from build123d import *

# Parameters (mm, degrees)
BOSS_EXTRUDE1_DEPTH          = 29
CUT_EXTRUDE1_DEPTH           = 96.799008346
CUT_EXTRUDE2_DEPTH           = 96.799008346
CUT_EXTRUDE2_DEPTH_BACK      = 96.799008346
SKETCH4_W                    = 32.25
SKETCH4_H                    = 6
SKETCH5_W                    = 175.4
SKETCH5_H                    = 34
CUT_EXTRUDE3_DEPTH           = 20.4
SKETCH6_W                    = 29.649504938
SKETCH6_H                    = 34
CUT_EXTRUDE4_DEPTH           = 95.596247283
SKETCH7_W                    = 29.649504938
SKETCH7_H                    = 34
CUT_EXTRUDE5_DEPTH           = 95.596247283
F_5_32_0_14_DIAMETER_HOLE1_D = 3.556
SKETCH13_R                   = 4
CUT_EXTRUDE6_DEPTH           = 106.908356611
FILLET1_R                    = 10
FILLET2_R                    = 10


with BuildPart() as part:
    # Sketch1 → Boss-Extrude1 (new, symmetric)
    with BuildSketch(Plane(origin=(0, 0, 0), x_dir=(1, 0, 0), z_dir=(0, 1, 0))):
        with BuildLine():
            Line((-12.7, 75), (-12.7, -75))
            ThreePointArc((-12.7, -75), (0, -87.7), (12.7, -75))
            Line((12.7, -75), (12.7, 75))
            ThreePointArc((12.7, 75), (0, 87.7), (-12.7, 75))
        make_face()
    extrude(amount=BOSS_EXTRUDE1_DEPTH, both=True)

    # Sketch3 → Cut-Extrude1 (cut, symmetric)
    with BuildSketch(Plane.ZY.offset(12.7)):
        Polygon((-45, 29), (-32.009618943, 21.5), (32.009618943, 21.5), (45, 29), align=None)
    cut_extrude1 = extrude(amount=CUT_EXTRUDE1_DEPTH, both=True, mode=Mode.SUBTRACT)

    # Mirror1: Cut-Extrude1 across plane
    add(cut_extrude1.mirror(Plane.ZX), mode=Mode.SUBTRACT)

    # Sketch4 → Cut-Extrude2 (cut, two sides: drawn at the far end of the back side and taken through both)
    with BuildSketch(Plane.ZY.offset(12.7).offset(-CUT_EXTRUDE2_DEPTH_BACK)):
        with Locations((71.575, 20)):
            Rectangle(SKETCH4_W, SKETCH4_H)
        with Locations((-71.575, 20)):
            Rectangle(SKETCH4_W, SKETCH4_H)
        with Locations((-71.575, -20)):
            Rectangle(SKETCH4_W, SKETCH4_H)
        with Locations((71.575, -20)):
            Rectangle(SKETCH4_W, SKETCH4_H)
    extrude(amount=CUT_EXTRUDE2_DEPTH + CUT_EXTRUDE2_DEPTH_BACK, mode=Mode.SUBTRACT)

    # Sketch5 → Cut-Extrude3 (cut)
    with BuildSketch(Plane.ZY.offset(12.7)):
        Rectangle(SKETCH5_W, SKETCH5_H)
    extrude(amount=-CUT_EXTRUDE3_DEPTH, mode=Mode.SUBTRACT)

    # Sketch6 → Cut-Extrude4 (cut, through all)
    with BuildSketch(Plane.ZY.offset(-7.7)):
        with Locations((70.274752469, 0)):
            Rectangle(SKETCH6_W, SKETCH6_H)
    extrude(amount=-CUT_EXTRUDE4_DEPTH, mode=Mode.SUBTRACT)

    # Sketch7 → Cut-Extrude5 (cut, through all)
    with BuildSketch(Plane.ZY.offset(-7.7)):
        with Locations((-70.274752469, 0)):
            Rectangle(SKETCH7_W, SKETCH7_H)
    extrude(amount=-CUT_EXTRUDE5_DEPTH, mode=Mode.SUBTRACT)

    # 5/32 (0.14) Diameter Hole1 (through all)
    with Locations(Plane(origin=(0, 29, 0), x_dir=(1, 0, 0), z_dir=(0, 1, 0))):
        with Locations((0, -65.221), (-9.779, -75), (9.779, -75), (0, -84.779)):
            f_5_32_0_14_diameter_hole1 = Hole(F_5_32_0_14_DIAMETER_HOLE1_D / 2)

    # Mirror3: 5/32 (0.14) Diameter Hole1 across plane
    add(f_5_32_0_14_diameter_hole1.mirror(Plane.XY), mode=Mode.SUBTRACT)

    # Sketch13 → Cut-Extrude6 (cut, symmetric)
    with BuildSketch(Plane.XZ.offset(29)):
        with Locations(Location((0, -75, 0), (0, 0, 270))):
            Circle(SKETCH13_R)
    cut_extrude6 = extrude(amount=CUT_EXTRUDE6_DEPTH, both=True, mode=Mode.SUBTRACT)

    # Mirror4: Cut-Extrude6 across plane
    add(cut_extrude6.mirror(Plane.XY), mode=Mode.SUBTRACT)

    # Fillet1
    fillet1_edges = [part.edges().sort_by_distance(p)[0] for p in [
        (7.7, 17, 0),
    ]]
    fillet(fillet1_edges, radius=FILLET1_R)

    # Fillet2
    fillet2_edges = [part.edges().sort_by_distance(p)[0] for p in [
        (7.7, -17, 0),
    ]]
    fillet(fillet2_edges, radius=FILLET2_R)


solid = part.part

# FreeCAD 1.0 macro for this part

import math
import FreeCAD as App
import Part
import Sketcher
Q = App.Units.Quantity


def edges_at(feature, points):
    """Names of the edges that pass closest to the given points."""
    edges = feature.Shape.Edges
    near = lambda p: min(range(len(edges)), key=lambda i: edges[i].distToShape(Part.Vertex(*p))[0])
    return sorted({f"Edge{near(p) + 1}" for p in points})

doc = App.newDocument("Part")
params = doc.addObject("Spreadsheet::Sheet", "Params")
for row, (alias, value) in enumerate([
    ("sketch1_radius", "12.7 mm"),
    ("sketch1_height", "150 mm"),
    ("pad1_length", "58 mm"),
    ("sketch2_height", "90 mm"),
    ("sketch2_length", "15 mm"),
    ("pocket1_length", "193.598017 mm"),
    ("sketch3_width", "6 mm"),
    ("sketch3_height", "32.25 mm"),
    ("sketch4_width", "34 mm"),
    ("sketch4_height", "175.4 mm"),
    ("pocket3_length", "20.4 mm"),
    ("sketch5_width", "34 mm"),
    ("sketch6_width", "34 mm"),
    ("hole_diameter", "3.556 mm"),
    ("sketch8_diameter", "8 mm"),
    ("pocket6_length", "213.816713 mm"),
    ("fillet_radius", "10 mm"),
    ("fillet2_radius", "10 mm"),
], start=1):
    params.set(f"A{row}", alias)
    params.set(f"B{row}", "=" + value)
    params.setAlias(f"B{row}", alias)

body = doc.addObject("PartDesign::Body", "Body")

sketch1 = body.newObject("Sketcher::SketchObject", "Sketch")
sketch1.AttachmentSupport = (doc.getObject("XZ_Plane"), [""])
sketch1.MapMode = "FlatFace"
sketch1.addGeometry([
    Part.LineSegment(App.Vector(-12.7, -75, 0), App.Vector(-12.7, 75, 0)),
    Part.ArcOfCircle(Part.Circle(App.Vector(0, 75, 0), App.Vector(0, 0, 1), 12.7), math.radians(0), math.radians(180)),
    Part.LineSegment(App.Vector(12.7, 75, 0), App.Vector(12.7, -75, 0)),
    Part.ArcOfCircle(Part.Circle(App.Vector(0, -75, 0), App.Vector(0, 0, 1), 12.7), math.radians(180), math.radians(360)),
], False)
sketch1.addConstraint([
    Sketcher.Constraint("Tangent", 0, 2, 1, 2),
    Sketcher.Constraint("Tangent", 1, 1, 2, 1),
    Sketcher.Constraint("Tangent", 2, 2, 3, 2),
    Sketcher.Constraint("Tangent", 3, 1, 0, 1),
    Sketcher.Constraint("Vertical", 0),
    Sketcher.Constraint("Vertical", 2),
    Sketcher.Constraint("Symmetric", 1, 3, 3, 3, -1, 1),
    Sketcher.Constraint("Radius", 1, Q("12.7 mm")),
    Sketcher.Constraint("DistanceY", 0, 1, 0, 2, Q("150 mm")),
])
sketch1.setExpression("Constraints[7]", "Params.sketch1_radius")
sketch1.setExpression("Constraints[8]", "Params.sketch1_height")
pad1 = body.newObject("PartDesign::Pad", "Pad")
pad1.Profile = sketch1
pad1.setExpression("Length", "Params.pad1_length")
pad1.Midplane = True

sketch2 = body.newObject("Sketcher::SketchObject", "Sketch001")
sketch2.AttachmentSupport = (doc.getObject("YZ_Plane"), [""])
sketch2.MapMode = "FlatFace"
sketch2.AttachmentOffset = App.Placement(App.Vector(0, 0, -12.7), App.Rotation())
sketch2.addGeometry([
    Part.LineSegment(App.Vector(29, -45, 0), App.Vector(21.5, -32.009619, 0)),
    Part.LineSegment(App.Vector(21.5, -32.009619, 0), App.Vector(21.5, 32.009619, 0)),
    Part.LineSegment(App.Vector(21.5, 32.009619, 0), App.Vector(29, 45, 0)),
    Part.LineSegment(App.Vector(29, 45, 0), App.Vector(29, -45, 0)),
], False)
sketch2.addConstraint([
    Sketcher.Constraint("Coincident", 0, 2, 1, 1),
    Sketcher.Constraint("Coincident", 1, 2, 2, 1),
    Sketcher.Constraint("Coincident", 2, 2, 3, 1),
    Sketcher.Constraint("Coincident", 3, 2, 0, 1),
    Sketcher.Constraint("Vertical", 1),
    Sketcher.Constraint("Vertical", 3),
    Sketcher.Constraint("Equal", 0, 2),
    Sketcher.Constraint("DistanceY", 3, 2, 3, 1, Q("90 mm")),
    Sketcher.Constraint("Angle", 0, Q("120 deg")),
    Sketcher.Constraint("Distance", 0, Q("15 mm")),
    Sketcher.Constraint("DistanceX", -1, 1, 2, 2, Q("29 mm")),
    Sketcher.Constraint("DistanceY", -1, 1, 2, 2, Q("45 mm")),
])
sketch2.setExpression("Constraints[7]", "Params.sketch2_height")
sketch2.setExpression("Constraints[9]", "Params.sketch2_length")
pocket1 = body.newObject("PartDesign::Pocket", "Pocket")
pocket1.Profile = sketch2
pocket1.setExpression("Length", "Params.pocket1_length")
pocket1.Midplane = True
doc.recompute()

mirrored = body.newObject("PartDesign::Mirrored", "Mirrored")
mirrored.Originals = [pocket1]
mirrored.MirrorPlane = (doc.getObject("XZ_Plane"), [""])
body.Tip = mirrored

sketch3 = body.newObject("Sketcher::SketchObject", "Sketch002")
sketch3.AttachmentSupport = (doc.getObject("YZ_Plane"), [""])
sketch3.MapMode = "FlatFace"
sketch3.AttachmentOffset = App.Placement(App.Vector(0, 0, -12.7), App.Rotation())
sketch3.addGeometry([
    Part.LineSegment(App.Vector(23, 55.45, 0), App.Vector(17, 55.45, 0)),
    Part.LineSegment(App.Vector(17, 55.45, 0), App.Vector(17, 87.7, 0)),
    Part.LineSegment(App.Vector(17, 87.7, 0), App.Vector(23, 87.7, 0)),
    Part.LineSegment(App.Vector(23, 87.7, 0), App.Vector(23, 55.45, 0)),
    Part.LineSegment(App.Vector(23, -87.7, 0), App.Vector(17, -87.7, 0)),
    Part.LineSegment(App.Vector(17, -87.7, 0), App.Vector(17, -55.45, 0)),
    Part.LineSegment(App.Vector(17, -55.45, 0), App.Vector(23, -55.45, 0)),
    Part.LineSegment(App.Vector(23, -55.45, 0), App.Vector(23, -87.7, 0)),
    Part.LineSegment(App.Vector(-17, -87.7, 0), App.Vector(-23, -87.7, 0)),
    Part.LineSegment(App.Vector(-23, -87.7, 0), App.Vector(-23, -55.45, 0)),
    Part.LineSegment(App.Vector(-23, -55.45, 0), App.Vector(-17, -55.45, 0)),
    Part.LineSegment(App.Vector(-17, -55.45, 0), App.Vector(-17, -87.7, 0)),
    Part.LineSegment(App.Vector(-17, 55.45, 0), App.Vector(-23, 55.45, 0)),
    Part.LineSegment(App.Vector(-23, 55.45, 0), App.Vector(-23, 87.7, 0)),
    Part.LineSegment(App.Vector(-23, 87.7, 0), App.Vector(-17, 87.7, 0)),
    Part.LineSegment(App.Vector(-17, 87.7, 0), App.Vector(-17, 55.45, 0)),
], False)
sketch3.addConstraint([
    Sketcher.Constraint("Coincident", 0, 2, 1, 1),
    Sketcher.Constraint("Coincident", 1, 2, 2, 1),
    Sketcher.Constraint("Coincident", 2, 2, 3, 1),
    Sketcher.Constraint("Coincident", 3, 2, 0, 1),
    Sketcher.Constraint("Coincident", 4, 2, 5, 1),
    Sketcher.Constraint("Coincident", 5, 2, 6, 1),
    Sketcher.Constraint("Coincident", 6, 2, 7, 1),
    Sketcher.Constraint("Coincident", 7, 2, 4, 1),
    Sketcher.Constraint("Coincident", 8, 2, 9, 1),
    Sketcher.Constraint("Coincident", 9, 2, 10, 1),
    Sketcher.Constraint("Coincident", 10, 2, 11, 1),
    Sketcher.Constraint("Coincident", 11, 2, 8, 1),
    Sketcher.Constraint("Coincident", 12, 2, 13, 1),
    Sketcher.Constraint("Coincident", 13, 2, 14, 1),
    Sketcher.Constraint("Coincident", 14, 2, 15, 1),
    Sketcher.Constraint("Coincident", 15, 2, 12, 1),
    Sketcher.Constraint("Horizontal", 0),
    Sketcher.Constraint("Vertical", 1),
    Sketcher.Constraint("Horizontal", 2),
    Sketcher.Constraint("Vertical", 3),
    Sketcher.Constraint("Horizontal", 4),
    Sketcher.Constraint("Vertical", 5),
    Sketcher.Constraint("Horizontal", 6),
    Sketcher.Constraint("Vertical", 7),
    Sketcher.Constraint("Horizontal", 8),
    Sketcher.Constraint("Vertical", 9),
    Sketcher.Constraint("Horizontal", 10),
    Sketcher.Constraint("Vertical", 11),
    Sketcher.Constraint("Horizontal", 12),
    Sketcher.Constraint("Vertical", 13),
    Sketcher.Constraint("Horizontal", 14),
    Sketcher.Constraint("Vertical", 15),
    Sketcher.Constraint("Symmetric", 2, 2, 8, 2, -1, 1),
    Sketcher.Constraint("Symmetric", 0, 2, 10, 2, -1, 1),
    Sketcher.Constraint("Symmetric", 6, 2, 12, 2, -1, 1),
    Sketcher.Constraint("Symmetric", 4, 2, 14, 2, -1, 1),
    Sketcher.Constraint("Symmetric", 7, 2, 8, 2, -2),
    Sketcher.Constraint("Symmetric", 5, 2, 10, 2, -2),
    Sketcher.Constraint("DistanceX", 0, 2, 0, 1, Q("6 mm")),
    Sketcher.Constraint("DistanceX", -1, 1, 0, 2, Q("17 mm")),
    Sketcher.Constraint("DistanceY", 1, 1, 1, 2, Q("32.25 mm")),
    Sketcher.Constraint("DistanceY", -1, 1, 1, 2, Q("87.7 mm")),
])
sketch3.setExpression("Constraints[38]", "Params.sketch3_width")
sketch3.setExpression("Constraints[40]", "Params.sketch3_height")
pocket2 = body.newObject("PartDesign::Pocket", "Pocket001")
pocket2.Profile = sketch3
pocket2.Type = "ThroughAll"
pocket2.Midplane = True

sketch4 = body.newObject("Sketcher::SketchObject", "Sketch003")
sketch4.AttachmentSupport = (doc.getObject("YZ_Plane"), [""])
sketch4.MapMode = "FlatFace"
sketch4.AttachmentOffset = App.Placement(App.Vector(0, 0, -12.7), App.Rotation())
sketch4.addGeometry([
    Part.LineSegment(App.Vector(17, -87.7, 0), App.Vector(-17, -87.7, 0)),
    Part.LineSegment(App.Vector(-17, -87.7, 0), App.Vector(-17, 87.7, 0)),
    Part.LineSegment(App.Vector(-17, 87.7, 0), App.Vector(17, 87.7, 0)),
    Part.LineSegment(App.Vector(17, 87.7, 0), App.Vector(17, -87.7, 0)),
], False)
sketch4.addConstraint([
    Sketcher.Constraint("Coincident", 0, 2, 1, 1),
    Sketcher.Constraint("Coincident", 1, 2, 2, 1),
    Sketcher.Constraint("Coincident", 2, 2, 3, 1),
    Sketcher.Constraint("Coincident", 3, 2, 0, 1),
    Sketcher.Constraint("Horizontal", 0),
    Sketcher.Constraint("Vertical", 1),
    Sketcher.Constraint("Horizontal", 2),
    Sketcher.Constraint("Vertical", 3),
    Sketcher.Constraint("Symmetric", 0, 2, 2, 2, -1, 1),
    Sketcher.Constraint("DistanceX", 0, 2, 0, 1, Q("34 mm")),
    Sketcher.Constraint("DistanceY", 1, 1, 1, 2, Q("175.4 mm")),
])
sketch4.setExpression("Constraints[9]", "Params.sketch4_width")
sketch4.setExpression("Constraints[10]", "Params.sketch4_height")
pocket3 = body.newObject("PartDesign::Pocket", "Pocket002")
pocket3.Profile = sketch4
pocket3.setExpression("Length", "Params.pocket3_length")
pocket3.Reversed = True

sketch5 = body.newObject("Sketcher::SketchObject", "Sketch004")
sketch5.AttachmentSupport = (doc.getObject("YZ_Plane"), [""])
sketch5.MapMode = "FlatFace"
sketch5.AttachmentOffset = App.Placement(App.Vector(0, 0, 7.7), App.Rotation())
sketch5.addGeometry([
    Part.LineSegment(App.Vector(17, 55.45, 0), App.Vector(-17, 55.45, 0)),
    Part.LineSegment(App.Vector(-17, 55.45, 0), App.Vector(-17, 85.099505, 0)),
    Part.LineSegment(App.Vector(-17, 85.099505, 0), App.Vector(17, 85.099505, 0)),
    Part.LineSegment(App.Vector(17, 85.099505, 0), App.Vector(17, 55.45, 0)),
], False)
sketch5.addConstraint([
    Sketcher.Constraint("Coincident", 0, 2, 1, 1),
    Sketcher.Constraint("Coincident", 1, 2, 2, 1),
    Sketcher.Constraint("Coincident", 2, 2, 3, 1),
    Sketcher.Constraint("Coincident", 3, 2, 0, 1),
    Sketcher.Constraint("Horizontal", 0),
    Sketcher.Constraint("Vertical", 1),
    Sketcher.Constraint("Horizontal", 2),
    Sketcher.Constraint("Vertical", 3),
    Sketcher.Constraint("DistanceX", 0, 2, 0, 1, Q("34 mm")),
    Sketcher.Constraint("DistanceX", 0, 2, -1, 1, Q("17 mm")),
    Sketcher.Constraint("DistanceY", -1, 1, 0, 2, Q("55.45 mm")),
    Sketcher.Constraint("DistanceY", 1, 1, 1, 2, Q("29.649505 mm")),
])
sketch5.setExpression("Constraints[8]", "Params.sketch5_width")
pocket4 = body.newObject("PartDesign::Pocket", "Pocket003")
pocket4.Profile = sketch5
pocket4.Type = "ThroughAll"
pocket4.Reversed = True

sketch6 = body.newObject("Sketcher::SketchObject", "Sketch005")
sketch6.AttachmentSupport = (doc.getObject("YZ_Plane"), [""])
sketch6.MapMode = "FlatFace"
sketch6.AttachmentOffset = App.Placement(App.Vector(0, 0, 7.7), App.Rotation())
sketch6.addGeometry([
    Part.LineSegment(App.Vector(17, -85.099505, 0), App.Vector(-17, -85.099505, 0)),
    Part.LineSegment(App.Vector(-17, -85.099505, 0), App.Vector(-17, -55.45, 0)),
    Part.LineSegment(App.Vector(-17, -55.45, 0), App.Vector(17, -55.45, 0)),
    Part.LineSegment(App.Vector(17, -55.45, 0), App.Vector(17, -85.099505, 0)),
], False)
sketch6.addConstraint([
    Sketcher.Constraint("Coincident", 0, 2, 1, 1),
    Sketcher.Constraint("Coincident", 1, 2, 2, 1),
    Sketcher.Constraint("Coincident", 2, 2, 3, 1),
    Sketcher.Constraint("Coincident", 3, 2, 0, 1),
    Sketcher.Constraint("Horizontal", 0),
    Sketcher.Constraint("Vertical", 1),
    Sketcher.Constraint("Horizontal", 2),
    Sketcher.Constraint("Vertical", 3),
    Sketcher.Constraint("DistanceX", 0, 2, 0, 1, Q("34 mm")),
    Sketcher.Constraint("DistanceX", 0, 2, -1, 1, Q("17 mm")),
    Sketcher.Constraint("DistanceY", 1, 2, -1, 1, Q("55.45 mm")),
    Sketcher.Constraint("DistanceY", 1, 1, 1, 2, Q("29.649505 mm")),
])
sketch6.setExpression("Constraints[8]", "Params.sketch6_width")
pocket5 = body.newObject("PartDesign::Pocket", "Pocket004")
pocket5.Profile = sketch6
pocket5.Type = "ThroughAll"
pocket5.Reversed = True

sketch7 = body.newObject("Sketcher::SketchObject", "Sketch006")
sketch7.AttachmentSupport = (doc.getObject("XZ_Plane"), [""])
sketch7.MapMode = "FlatFace"
sketch7.AttachmentOffset = App.Placement(App.Vector(0, 0, -29), App.Rotation())
sketch7.addGeometry([
    Part.Circle(App.Vector(0, 65.221, 0), App.Vector(0, 0, 1), 1.778),
    Part.Circle(App.Vector(-9.779, 75, 0), App.Vector(0, 0, 1), 1.778),
    Part.Circle(App.Vector(9.779, 75, 0), App.Vector(0, 0, 1), 1.778),
    Part.Circle(App.Vector(0, 84.779, 0), App.Vector(0, 0, 1), 1.778),
], False)
sketch7.addConstraint([
    Sketcher.Constraint("Equal", 0, 1),
    Sketcher.Constraint("Equal", 1, 2),
    Sketcher.Constraint("Equal", 2, 3),
    Sketcher.Constraint("Symmetric", 1, 3, 2, 3, -2),
    Sketcher.Constraint("PointOnObject", 0, 3, -2),
    Sketcher.Constraint("PointOnObject", 3, 3, -2),
    Sketcher.Constraint("Diameter", 0, Q("3.556 mm")),
    Sketcher.Constraint("DistanceY", -1, 1, 1, 3, Q("75 mm")),
    Sketcher.Constraint("DistanceY", -1, 1, 0, 3, Q("65.221 mm")),
    Sketcher.Constraint("DistanceX", 1, 3, -1, 1, Q("9.779 mm")),
    Sketcher.Constraint("DistanceY", -1, 1, 3, 3, Q("84.779 mm")),
])
doc.recompute()
hole = body.newObject("PartDesign::Hole", "Hole")
hole.Profile = sketch7
hole.ThreadType = "None"
hole.setExpression("Diameter", "Params.hole_diameter")
hole.DepthType = "ThroughAll"
hole.Reversed = True
doc.recompute()

mirrored2 = body.newObject("PartDesign::Mirrored", "Mirrored001")
mirrored2.Originals = [hole]
mirrored2.MirrorPlane = (doc.getObject("XY_Plane"), [""])
body.Tip = mirrored2

sketch8 = body.newObject("Sketcher::SketchObject", "Sketch007")
sketch8.AttachmentSupport = (doc.getObject("XZ_Plane"), [""])
sketch8.MapMode = "FlatFace"
sketch8.AttachmentOffset = App.Placement(App.Vector(0, 0, 29), App.Rotation())
sketch8.addGeometry(Part.Circle(App.Vector(0, -75, 0), App.Vector(0, 0, 1), 4), False)
sketch8.addConstraint([
    Sketcher.Constraint("PointOnObject", 0, 3, -2),
    Sketcher.Constraint("Diameter", 0, Q("8 mm")),
    Sketcher.Constraint("DistanceY", 0, 3, -1, 1, Q("75 mm")),
])
sketch8.setExpression("Constraints[1]", "Params.sketch8_diameter")
pocket6 = body.newObject("PartDesign::Pocket", "Pocket005")
pocket6.Profile = sketch8
pocket6.setExpression("Length", "Params.pocket6_length")
pocket6.Midplane = True
doc.recompute()

mirrored3 = body.newObject("PartDesign::Mirrored", "Mirrored002")
mirrored3.Originals = [pocket6]
mirrored3.MirrorPlane = (doc.getObject("XY_Plane"), [""])
body.Tip = mirrored3
doc.recompute()

fillet = body.newObject("PartDesign::Fillet", "Fillet")
fillet.Base = (mirrored3, edges_at(mirrored3, [(7.7, 17, 0)]))
fillet.setExpression("Radius", "Params.fillet_radius")
doc.recompute()

fillet2 = body.newObject("PartDesign::Fillet", "Fillet001")
fillet2.Base = (fillet, edges_at(fillet, [(7.7, -17, 0)]))
fillet2.setExpression("Radius", "Params.fillet2_radius")

doc.recompute()
